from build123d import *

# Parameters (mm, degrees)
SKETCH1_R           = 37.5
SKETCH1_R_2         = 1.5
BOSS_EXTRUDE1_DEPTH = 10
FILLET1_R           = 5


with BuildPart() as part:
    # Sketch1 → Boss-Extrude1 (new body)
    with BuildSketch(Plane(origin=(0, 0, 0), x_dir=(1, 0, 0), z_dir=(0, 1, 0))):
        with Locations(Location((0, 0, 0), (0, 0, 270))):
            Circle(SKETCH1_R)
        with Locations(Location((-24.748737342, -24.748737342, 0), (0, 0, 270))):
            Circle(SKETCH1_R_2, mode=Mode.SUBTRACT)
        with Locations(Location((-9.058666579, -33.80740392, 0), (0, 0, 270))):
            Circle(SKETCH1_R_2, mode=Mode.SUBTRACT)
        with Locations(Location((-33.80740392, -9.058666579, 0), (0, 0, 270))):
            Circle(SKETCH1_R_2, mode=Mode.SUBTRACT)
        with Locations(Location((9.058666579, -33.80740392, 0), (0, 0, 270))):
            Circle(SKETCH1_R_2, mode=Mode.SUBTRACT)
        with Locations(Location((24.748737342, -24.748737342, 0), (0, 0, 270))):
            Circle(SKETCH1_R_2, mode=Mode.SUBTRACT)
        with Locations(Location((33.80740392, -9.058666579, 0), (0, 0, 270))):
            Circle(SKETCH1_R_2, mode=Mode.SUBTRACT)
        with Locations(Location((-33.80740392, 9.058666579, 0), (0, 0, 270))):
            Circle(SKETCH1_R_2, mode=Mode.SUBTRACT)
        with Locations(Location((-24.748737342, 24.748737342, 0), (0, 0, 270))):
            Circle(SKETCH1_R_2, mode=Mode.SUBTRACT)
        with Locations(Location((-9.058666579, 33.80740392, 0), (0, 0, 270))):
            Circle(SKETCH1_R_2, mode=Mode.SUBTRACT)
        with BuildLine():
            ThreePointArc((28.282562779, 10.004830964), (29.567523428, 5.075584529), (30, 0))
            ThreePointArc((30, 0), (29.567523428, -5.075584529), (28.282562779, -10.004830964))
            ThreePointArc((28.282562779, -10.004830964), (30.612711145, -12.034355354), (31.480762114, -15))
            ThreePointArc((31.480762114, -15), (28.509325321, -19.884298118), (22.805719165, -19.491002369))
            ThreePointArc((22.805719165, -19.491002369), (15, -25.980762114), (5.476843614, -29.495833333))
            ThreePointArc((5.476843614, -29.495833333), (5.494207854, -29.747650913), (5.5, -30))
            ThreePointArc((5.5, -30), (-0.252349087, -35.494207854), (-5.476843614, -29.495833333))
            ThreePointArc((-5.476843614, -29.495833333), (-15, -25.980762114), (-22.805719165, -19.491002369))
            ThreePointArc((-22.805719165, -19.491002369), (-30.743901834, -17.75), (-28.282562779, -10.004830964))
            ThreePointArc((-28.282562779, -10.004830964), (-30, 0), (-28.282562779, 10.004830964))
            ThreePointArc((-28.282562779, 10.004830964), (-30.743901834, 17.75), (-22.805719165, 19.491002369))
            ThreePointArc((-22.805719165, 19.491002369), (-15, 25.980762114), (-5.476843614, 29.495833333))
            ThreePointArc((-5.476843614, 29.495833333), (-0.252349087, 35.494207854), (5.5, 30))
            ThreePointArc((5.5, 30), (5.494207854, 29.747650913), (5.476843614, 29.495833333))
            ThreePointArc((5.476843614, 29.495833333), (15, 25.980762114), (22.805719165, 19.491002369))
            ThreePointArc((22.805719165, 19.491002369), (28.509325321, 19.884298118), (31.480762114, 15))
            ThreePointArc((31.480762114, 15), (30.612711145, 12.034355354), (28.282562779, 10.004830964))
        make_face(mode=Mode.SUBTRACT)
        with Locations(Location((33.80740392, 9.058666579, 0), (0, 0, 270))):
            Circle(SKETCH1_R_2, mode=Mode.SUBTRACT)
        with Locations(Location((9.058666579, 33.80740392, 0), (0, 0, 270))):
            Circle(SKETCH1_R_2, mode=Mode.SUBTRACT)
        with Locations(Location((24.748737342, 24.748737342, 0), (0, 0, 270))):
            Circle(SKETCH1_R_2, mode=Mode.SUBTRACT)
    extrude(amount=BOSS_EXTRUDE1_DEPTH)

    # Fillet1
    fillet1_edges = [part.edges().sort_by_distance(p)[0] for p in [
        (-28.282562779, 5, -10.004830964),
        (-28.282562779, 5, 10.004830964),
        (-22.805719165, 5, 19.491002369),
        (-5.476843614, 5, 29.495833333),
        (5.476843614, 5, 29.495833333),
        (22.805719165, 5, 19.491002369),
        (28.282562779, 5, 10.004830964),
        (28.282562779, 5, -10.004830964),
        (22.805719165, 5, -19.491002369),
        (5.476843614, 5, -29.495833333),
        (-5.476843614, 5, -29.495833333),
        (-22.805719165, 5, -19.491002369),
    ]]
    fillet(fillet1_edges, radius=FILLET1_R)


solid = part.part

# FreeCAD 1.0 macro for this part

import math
import FreeCAD as App
import Part
import Sketcher


def edges_at(feature, points):
    """Names of the edges that pass closest to the given points."""
    edges = feature.Shape.Edges
    near = lambda p: min(range(len(edges)), key=lambda i: edges[i].distToShape(Part.Vertex(*p))[0])
    return sorted({f"Edge{near(p) + 1}" for p in points})

doc = App.newDocument("Part")
body = doc.addObject("PartDesign::Body", "Body")

sketch1 = doc.addObject("Sketcher::SketchObject", "Sketch")
body.addObject(sketch1)
sketch1.AttachmentSupport = (doc.XZ_Plane, [""])
sketch1.MapMode = "FlatFace"
sketch1.addGeometry([
    Part.Circle(App.Vector(0, 0, 0), App.Vector(0, 0, 1), 37.5),
    Part.Circle(App.Vector(-24.7, -24.7, 0), App.Vector(0, 0, 1), 1.5),
    Part.Circle(App.Vector(-33.8, -9.1, 0), App.Vector(0, 0, 1), 1.5),
    Part.Circle(App.Vector(-9.1, -33.8, 0), App.Vector(0, 0, 1), 1.5),
    Part.Circle(App.Vector(-33.8, 9.1, 0), App.Vector(0, 0, 1), 1.5),
    Part.Circle(App.Vector(-24.7, 24.7, 0), App.Vector(0, 0, 1), 1.5),
    Part.Circle(App.Vector(-9.1, 33.8, 0), App.Vector(0, 0, 1), 1.5),
    Part.Circle(App.Vector(9.1, -33.8, 0), App.Vector(0, 0, 1), 1.5),
    Part.Circle(App.Vector(24.7, -24.7, 0), App.Vector(0, 0, 1), 1.5),
    Part.Circle(App.Vector(33.8, -9.1, 0), App.Vector(0, 0, 1), 1.5),
    Part.ArcOfCircle(Part.Circle(App.Vector(26, -15, 0), App.Vector(0, 0, 1), 5.5), math.radians(0), math.radians(65)),
    Part.ArcOfCircle(Part.Circle(App.Vector(0, 0, 0), App.Vector(0, 0, 1), 30), math.radians(-19.48), math.radians(0)),
    Part.ArcOfCircle(Part.Circle(App.Vector(0, 0, 0), App.Vector(0, 0, 1), 30), math.radians(0), math.radians(19.48)),
    Part.ArcOfCircle(Part.Circle(App.Vector(26, 15, 0), App.Vector(0, 0, 1), 5.5), math.radians(-65), math.radians(0)),
    Part.ArcOfCircle(Part.Circle(App.Vector(26, 15, 0), App.Vector(0, 0, 1), 5.5), math.radians(0), math.radians(125)),
    Part.ArcOfCircle(Part.Circle(App.Vector(0, 0, 0), App.Vector(0, 0, 1), 30), math.radians(41), math.radians(79)),
    Part.ArcOfCircle(Part.Circle(App.Vector(0, 30, 0), App.Vector(0, 0, 1), 5.5), math.radians(-5.26), math.radians(0)),
    Part.ArcOfCircle(Part.Circle(App.Vector(0, 30, 0), App.Vector(0, 0, 1), 5.5), math.radians(0), math.radians(185)),
    Part.ArcOfCircle(Part.Circle(App.Vector(0, 0, 0), App.Vector(0, 0, 1), 30), math.radians(101), math.radians(139)),
    Part.ArcOfCircle(Part.Circle(App.Vector(-26, 15, 0), App.Vector(0, 0, 1), 5.5), math.radians(55), math.radians(245)),
    Part.ArcOfCircle(Part.Circle(App.Vector(0, 0, 0), App.Vector(0, 0, 1), 30), math.radians(161), math.radians(199)),
    Part.ArcOfCircle(Part.Circle(App.Vector(-26, -15, 0), App.Vector(0, 0, 1), 5.5), math.radians(115), math.radians(305)),
    Part.ArcOfCircle(Part.Circle(App.Vector(0, 0, 0), App.Vector(0, 0, 1), 30), math.radians(-139), math.radians(-101)),
    Part.ArcOfCircle(Part.Circle(App.Vector(0, -30, 0), App.Vector(0, 0, 1), 5.5), math.radians(175), math.radians(360)),
    Part.ArcOfCircle(Part.Circle(App.Vector(0, -30, 0), App.Vector(0, 0, 1), 5.5), math.radians(0), math.radians(5.26)),
    Part.ArcOfCircle(Part.Circle(App.Vector(0, 0, 0), App.Vector(0, 0, 1), 30), math.radians(-79), math.radians(-41)),
    Part.ArcOfCircle(Part.Circle(App.Vector(26, -15, 0), App.Vector(0, 0, 1), 5.5), math.radians(-125), math.radians(0)),
    Part.Circle(App.Vector(9.1, 33.8, 0), App.Vector(0, 0, 1), 1.5),
    Part.Circle(App.Vector(33.8, 9.1, 0), App.Vector(0, 0, 1), 1.5),
    Part.Circle(App.Vector(24.7, 24.7, 0), App.Vector(0, 0, 1), 1.5),
], False)
sketch1.addConstraint([
    Sketcher.Constraint("Coincident", 10, 2, 11, 1),
    Sketcher.Constraint("Tangent", 11, 2, 12, 1),
    Sketcher.Constraint("Coincident", 12, 2, 13, 1),
    Sketcher.Constraint("Tangent", 13, 2, 14, 1),
    Sketcher.Constraint("Coincident", 14, 2, 15, 1),
    Sketcher.Constraint("Coincident", 15, 2, 16, 1),
    Sketcher.Constraint("Tangent", 16, 2, 17, 1),
    Sketcher.Constraint("Coincident", 17, 2, 18, 1),
    Sketcher.Constraint("Coincident", 18, 2, 19, 1),
    Sketcher.Constraint("Coincident", 19, 2, 20, 1),
    Sketcher.Constraint("Coincident", 20, 2, 21, 1),
    Sketcher.Constraint("Coincident", 21, 2, 22, 1),
    Sketcher.Constraint("Coincident", 22, 2, 23, 1),
    Sketcher.Constraint("Tangent", 23, 2, 24, 1),
    Sketcher.Constraint("Coincident", 24, 2, 25, 1),
    Sketcher.Constraint("Coincident", 25, 2, 26, 1),
    Sketcher.Constraint("Tangent", 26, 2, 10, 1),
    Sketcher.Constraint("Coincident", 0, 3, -1, 1),
    Sketcher.Constraint("Coincident", 11, 3, -1, 1),
    Sketcher.Constraint("Coincident", 15, 3, -1, 1),
    Sketcher.Constraint("Coincident", 18, 3, -1, 1),
    Sketcher.Constraint("Coincident", 20, 3, -1, 1),
    Sketcher.Constraint("Coincident", 22, 3, -1, 1),
    Sketcher.Constraint("Coincident", 25, 3, -1, 1),
    Sketcher.Constraint("Equal", 1, 2),
    Sketcher.Constraint("Equal", 2, 3),
    Sketcher.Constraint("Equal", 3, 4),
    Sketcher.Constraint("Equal", 4, 5),
    Sketcher.Constraint("Equal", 5, 6),
    Sketcher.Constraint("Equal", 6, 7),
    Sketcher.Constraint("Equal", 7, 8),
    Sketcher.Constraint("Equal", 8, 9),
    Sketcher.Constraint("Equal", 11, 12),
    Sketcher.Constraint("Equal", 10, 13),
    Sketcher.Constraint("Equal", 13, 14),
    Sketcher.Constraint("Equal", 12, 15),
    Sketcher.Constraint("Equal", 14, 16),
    Sketcher.Constraint("Equal", 16, 17),
    Sketcher.Constraint("Equal", 15, 18),
    Sketcher.Constraint("Equal", 17, 19),
    Sketcher.Constraint("Equal", 18, 20),
    Sketcher.Constraint("Equal", 19, 21),
    Sketcher.Constraint("Equal", 20, 22),
    Sketcher.Constraint("Equal", 21, 23),
    Sketcher.Constraint("Equal", 23, 24),
    Sketcher.Constraint("Equal", 22, 25),
    Sketcher.Constraint("Equal", 24, 26),
    Sketcher.Constraint("Equal", 9, 27),
    Sketcher.Constraint("Equal", 27, 28),
    Sketcher.Constraint("Equal", 28, 29),
    Sketcher.Constraint("Symmetric", 6, 3, 7, 3, -1, 1),
    Sketcher.Constraint("Symmetric", 5, 3, 8, 3, -1, 1),
    Sketcher.Constraint("Symmetric", 4, 3, 9, 3, -1, 1),
    Sketcher.Constraint("Symmetric", 10, 3, 19, 3, -1, 1),
    Sketcher.Constraint("Symmetric", 13, 3, 21, 3, -1, 1),
    Sketcher.Constraint("Symmetric", 16, 3, 23, 3, -1, 1),
    Sketcher.Constraint("Symmetric", 3, 3, 27, 3, -1, 1),
    Sketcher.Constraint("Symmetric", 2, 3, 28, 3, -1, 1),
    Sketcher.Constraint("Symmetric", 1, 3, 29, 3, -1, 1),
    Sketcher.Constraint("Symmetric", 3, 3, 7, 3, -2),
    Sketcher.Constraint("Symmetric", 1, 3, 8, 3, -2),
    Sketcher.Constraint("Symmetric", 2, 3, 9, 3, -2),
    Sketcher.Constraint("Symmetric", 13, 3, 19, 3, -2),
    Sketcher.Constraint("Symmetric", 16, 2, 23, 2, -1),
    Sketcher.Constraint("PointOnObject", 11, 2, -1),
    Sketcher.Constraint("Horizontal", 19, 3, 13, 2),
    Sketcher.Constraint("Horizontal", 17, 3, 16, 2),
    Sketcher.Constraint("Horizontal", 21, 3, 26, 2),
    Sketcher.Constraint("Diameter", 0, 75.0),
    Sketcher.Constraint("Diameter", 1, 3.0),
    Sketcher.Constraint("Radius", 11, 30.0),
    Sketcher.Constraint("Radius", 10, 5.5),
    Sketcher.Constraint("DistanceY", 10, 3, -1, 1, 15.0),
    Sketcher.Constraint("DistanceY", -1, 1, 16, 3, 30.0),
    Sketcher.Constraint("DistanceX", 26, 3, 10, 2, 2.301801),
    Sketcher.Constraint("DistanceY", 18, 2, 6, 3, 14.316402),
    Sketcher.Constraint("DistanceY", 1, 3, 2, 3, 15.690071),
    Sketcher.Constraint("DistanceX", 1, 3, 3, 3, 15.690071),
    Sketcher.Constraint("DistanceY", 3, 3, 4, 3, 42.86607),
    Sketcher.Constraint("DistanceX", 2, 3, 7, 3, 42.86607),
    Sketcher.Constraint("DistanceX", 10, 3, 9, 3, 7.826642),
])
pad1 = doc.addObject("PartDesign::Pad", "Pad")
body.addObject(pad1)
pad1.Profile = sketch1
pad1.Length = 10
pad1.Reversed = True
doc.recompute()

fillet = doc.addObject("PartDesign::Fillet", "Fillet")
body.addObject(fillet)
fillet.Base = (pad1, edges_at(pad1, [
    (-28.283, 5, -10.005),
    (-28.283, 5, 10.005),
    (-22.806, 5, 19.491),
    (-5.477, 5, 29.496),
    (5.477, 5, 29.496),
    (22.806, 5, 19.491),
    (28.283, 5, 10.005),
    (28.283, 5, -10.005),
    (22.806, 5, -19.491),
    (5.477, 5, -29.496),
    (-5.477, 5, -29.496),
    (-22.806, 5, -19.491),
]))
fillet.Radius = 5

doc.recompute()
